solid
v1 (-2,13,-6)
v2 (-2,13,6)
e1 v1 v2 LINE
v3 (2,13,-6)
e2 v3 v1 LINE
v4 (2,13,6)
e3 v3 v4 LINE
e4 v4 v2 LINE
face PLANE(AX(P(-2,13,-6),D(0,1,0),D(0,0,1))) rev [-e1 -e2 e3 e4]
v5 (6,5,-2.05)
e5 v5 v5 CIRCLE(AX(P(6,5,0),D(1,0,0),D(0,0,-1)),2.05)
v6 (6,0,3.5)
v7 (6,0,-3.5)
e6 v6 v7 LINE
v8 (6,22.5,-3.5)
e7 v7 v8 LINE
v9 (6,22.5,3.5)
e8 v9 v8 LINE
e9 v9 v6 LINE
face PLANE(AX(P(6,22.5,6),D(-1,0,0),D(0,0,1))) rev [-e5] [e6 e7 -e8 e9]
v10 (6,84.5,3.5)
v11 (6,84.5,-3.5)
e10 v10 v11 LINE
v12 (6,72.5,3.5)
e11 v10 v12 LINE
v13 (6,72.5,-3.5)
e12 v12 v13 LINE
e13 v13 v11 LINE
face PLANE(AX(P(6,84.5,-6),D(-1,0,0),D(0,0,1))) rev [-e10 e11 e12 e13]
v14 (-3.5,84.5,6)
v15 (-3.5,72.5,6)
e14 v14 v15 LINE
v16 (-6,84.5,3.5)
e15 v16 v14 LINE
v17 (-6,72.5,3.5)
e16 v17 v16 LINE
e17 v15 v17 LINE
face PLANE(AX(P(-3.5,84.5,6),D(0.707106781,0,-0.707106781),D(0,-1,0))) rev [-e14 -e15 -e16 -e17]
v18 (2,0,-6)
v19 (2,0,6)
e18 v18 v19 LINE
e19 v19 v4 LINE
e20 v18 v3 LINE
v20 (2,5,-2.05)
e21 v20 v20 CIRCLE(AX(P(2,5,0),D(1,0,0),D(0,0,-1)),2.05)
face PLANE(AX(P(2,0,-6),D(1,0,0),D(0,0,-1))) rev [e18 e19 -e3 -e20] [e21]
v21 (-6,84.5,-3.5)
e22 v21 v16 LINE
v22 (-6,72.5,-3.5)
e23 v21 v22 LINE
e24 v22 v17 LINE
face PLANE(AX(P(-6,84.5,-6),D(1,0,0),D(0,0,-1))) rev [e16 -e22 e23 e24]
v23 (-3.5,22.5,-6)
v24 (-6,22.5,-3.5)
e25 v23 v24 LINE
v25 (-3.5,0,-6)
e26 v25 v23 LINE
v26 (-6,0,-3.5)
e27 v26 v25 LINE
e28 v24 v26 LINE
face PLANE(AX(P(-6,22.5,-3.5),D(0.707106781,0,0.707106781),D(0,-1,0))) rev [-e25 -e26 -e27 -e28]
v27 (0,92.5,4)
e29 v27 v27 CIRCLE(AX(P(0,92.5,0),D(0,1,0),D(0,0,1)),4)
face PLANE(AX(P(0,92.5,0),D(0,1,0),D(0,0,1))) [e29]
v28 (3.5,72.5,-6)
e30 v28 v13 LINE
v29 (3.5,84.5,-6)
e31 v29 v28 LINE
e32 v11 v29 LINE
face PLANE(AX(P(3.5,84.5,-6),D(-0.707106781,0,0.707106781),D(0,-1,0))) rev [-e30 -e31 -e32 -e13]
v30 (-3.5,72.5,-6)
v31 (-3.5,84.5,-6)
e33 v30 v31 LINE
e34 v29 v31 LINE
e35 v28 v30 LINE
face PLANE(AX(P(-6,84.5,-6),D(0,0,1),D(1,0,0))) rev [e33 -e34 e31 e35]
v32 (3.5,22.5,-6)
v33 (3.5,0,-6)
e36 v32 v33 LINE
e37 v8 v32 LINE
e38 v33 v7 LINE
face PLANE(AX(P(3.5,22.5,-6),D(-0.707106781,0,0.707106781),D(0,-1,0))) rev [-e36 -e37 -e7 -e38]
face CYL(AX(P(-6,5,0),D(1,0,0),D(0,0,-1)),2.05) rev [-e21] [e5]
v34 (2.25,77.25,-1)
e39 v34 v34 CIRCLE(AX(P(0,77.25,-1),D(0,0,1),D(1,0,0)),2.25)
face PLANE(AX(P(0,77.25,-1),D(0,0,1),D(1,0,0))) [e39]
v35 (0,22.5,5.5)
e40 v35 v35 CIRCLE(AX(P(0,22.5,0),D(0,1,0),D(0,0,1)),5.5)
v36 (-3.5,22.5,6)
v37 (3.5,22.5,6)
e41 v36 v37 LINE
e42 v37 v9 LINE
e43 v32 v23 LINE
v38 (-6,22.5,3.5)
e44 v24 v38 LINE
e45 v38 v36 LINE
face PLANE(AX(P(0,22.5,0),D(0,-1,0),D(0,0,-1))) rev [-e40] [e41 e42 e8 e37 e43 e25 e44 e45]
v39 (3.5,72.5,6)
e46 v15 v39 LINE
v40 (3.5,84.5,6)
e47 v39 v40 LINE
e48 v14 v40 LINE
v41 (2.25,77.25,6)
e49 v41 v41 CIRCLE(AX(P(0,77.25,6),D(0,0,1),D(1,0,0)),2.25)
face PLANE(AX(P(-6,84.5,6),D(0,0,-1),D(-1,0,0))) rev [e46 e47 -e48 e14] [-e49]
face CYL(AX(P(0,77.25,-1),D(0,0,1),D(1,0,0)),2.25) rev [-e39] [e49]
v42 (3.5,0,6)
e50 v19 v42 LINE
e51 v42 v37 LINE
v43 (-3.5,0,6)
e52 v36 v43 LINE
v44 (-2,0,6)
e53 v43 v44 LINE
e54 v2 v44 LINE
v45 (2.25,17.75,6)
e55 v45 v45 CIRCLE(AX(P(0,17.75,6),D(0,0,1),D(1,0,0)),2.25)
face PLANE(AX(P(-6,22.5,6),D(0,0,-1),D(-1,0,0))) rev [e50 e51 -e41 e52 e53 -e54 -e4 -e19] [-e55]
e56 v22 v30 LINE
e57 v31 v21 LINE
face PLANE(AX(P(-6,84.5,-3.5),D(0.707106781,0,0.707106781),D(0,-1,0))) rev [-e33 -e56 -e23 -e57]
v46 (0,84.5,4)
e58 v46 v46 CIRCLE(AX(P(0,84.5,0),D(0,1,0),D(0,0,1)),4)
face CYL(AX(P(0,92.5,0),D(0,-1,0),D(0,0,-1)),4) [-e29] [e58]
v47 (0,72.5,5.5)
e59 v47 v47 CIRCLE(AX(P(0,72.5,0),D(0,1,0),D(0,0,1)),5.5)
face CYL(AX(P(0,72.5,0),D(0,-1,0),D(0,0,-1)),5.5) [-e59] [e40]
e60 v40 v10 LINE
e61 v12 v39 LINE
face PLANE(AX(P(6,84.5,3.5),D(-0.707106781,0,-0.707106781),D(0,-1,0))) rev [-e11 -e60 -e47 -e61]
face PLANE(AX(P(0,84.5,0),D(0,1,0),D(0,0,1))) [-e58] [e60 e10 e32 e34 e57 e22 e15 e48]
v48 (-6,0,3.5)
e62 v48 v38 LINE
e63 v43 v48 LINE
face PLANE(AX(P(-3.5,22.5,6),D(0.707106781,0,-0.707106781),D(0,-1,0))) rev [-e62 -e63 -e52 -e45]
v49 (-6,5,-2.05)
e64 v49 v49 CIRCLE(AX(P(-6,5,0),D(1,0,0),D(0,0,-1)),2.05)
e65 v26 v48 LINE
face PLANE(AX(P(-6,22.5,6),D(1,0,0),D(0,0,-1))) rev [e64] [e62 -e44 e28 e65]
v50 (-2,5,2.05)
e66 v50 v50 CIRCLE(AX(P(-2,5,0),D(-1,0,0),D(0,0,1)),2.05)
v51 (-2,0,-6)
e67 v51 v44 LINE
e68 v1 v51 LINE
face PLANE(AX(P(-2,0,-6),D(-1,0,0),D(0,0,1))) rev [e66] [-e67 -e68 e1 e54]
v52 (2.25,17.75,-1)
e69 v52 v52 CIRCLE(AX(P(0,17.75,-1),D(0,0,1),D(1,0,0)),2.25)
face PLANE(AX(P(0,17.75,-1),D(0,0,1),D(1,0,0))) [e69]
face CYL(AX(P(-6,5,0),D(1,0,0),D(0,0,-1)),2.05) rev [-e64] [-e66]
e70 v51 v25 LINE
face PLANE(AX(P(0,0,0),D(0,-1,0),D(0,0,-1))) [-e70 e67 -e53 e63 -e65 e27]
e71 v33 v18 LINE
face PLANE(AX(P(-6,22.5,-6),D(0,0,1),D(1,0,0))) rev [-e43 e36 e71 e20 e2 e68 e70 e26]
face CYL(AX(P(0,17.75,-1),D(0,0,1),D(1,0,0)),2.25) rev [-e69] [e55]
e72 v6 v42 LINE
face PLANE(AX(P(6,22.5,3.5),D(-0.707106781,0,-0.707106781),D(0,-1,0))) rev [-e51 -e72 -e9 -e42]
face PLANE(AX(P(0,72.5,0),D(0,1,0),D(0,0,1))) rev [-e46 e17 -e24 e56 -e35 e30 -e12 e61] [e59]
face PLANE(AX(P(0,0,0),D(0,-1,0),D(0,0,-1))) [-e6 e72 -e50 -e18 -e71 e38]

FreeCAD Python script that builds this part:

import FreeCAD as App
import Part
import Sketcher
Q = App.Units.Quantity


def edges_at(feature, points):
    """Names of the edges that pass closest to the given points."""
    edges = feature.Shape.Edges
    near = lambda p: min(range(len(edges)), key=lambda i: edges[i].distToShape(Part.Vertex(*p))[0])
    return sorted({f"Edge{near(p) + 1}" for p in points})

doc = App.newDocument("Part")
params = doc.addObject("Spreadsheet::Sheet", "Params")
for row, (alias, value) in enumerate([
    ("sketch1_width", "12 mm"),
    ("pad1_length", "22.5 mm"),
    ("sketch2_diameter", "11 mm"),
    ("pad2_length", "50 mm"),
    ("sketch3_width", "12 mm"),
    ("pad3_length", "12 mm"),
    ("sketch4_diameter", "8 mm"),
    ("pad4_length", "8 mm"),
    ("chamfer_size", "2.5 mm"),
    ("chamfer2_size", "2.5 mm"),
    ("sketch5_width", "4 mm"),
    ("sketch5_height", "13 mm"),
    ("sketch6_diameter", "4.1 mm"),
    ("sketch7_diameter", "4.5 mm"),
    ("pocket3_length", "7 mm"),
    ("sketch8_diameter", "4.5 mm"),
    ("pocket4_length", "7 mm"),
], start=1):
    params.set(f"A{row}", alias)
    params.set(f"B{row}", "=" + value)
    params.setAlias(f"B{row}", alias)

body = doc.addObject("PartDesign::Body", "Body")

# Sketch on XZ plane
sketch1 = doc.addObject("Sketcher::SketchObject", "Sketch")
body.addObject(sketch1)
sketch1.AttachmentSupport = (doc.XZ_Plane, [""])
sketch1.MapMode = "FlatFace"
sketch1.addGeometry([
    Part.LineSegment(App.Vector(-6, -6, 0), App.Vector(-6, 6, 0)),
    Part.LineSegment(App.Vector(-6, 6, 0), App.Vector(6, 6, 0)),
    Part.LineSegment(App.Vector(6, 6, 0), App.Vector(6, -6, 0)),
    Part.LineSegment(App.Vector(6, -6, 0), App.Vector(-6, -6, 0)),
], False)
sketch1.addConstraint([
    Sketcher.Constraint("Coincident", 0, 2, 1, 1),
    Sketcher.Constraint("Coincident", 1, 2, 2, 1),
    Sketcher.Constraint("Coincident", 2, 2, 3, 1),
    Sketcher.Constraint("Coincident", 3, 2, 0, 1),
    Sketcher.Constraint("Vertical", 0),
    Sketcher.Constraint("Horizontal", 1),
    Sketcher.Constraint("Vertical", 2),
    Sketcher.Constraint("Horizontal", 3),
    Sketcher.Constraint("Symmetric", 0, 2, 2, 2, -1, 1),
    Sketcher.Constraint("Equal", 3, 0),
    Sketcher.Constraint("DistanceX", 1, 1, 1, 2, Q("12 mm")),
])
sketch1.setExpression("Constraints[10]", "Params.sketch1_width")
pad1 = doc.addObject("PartDesign::Pad", "Pad")
body.addObject(pad1)
pad1.Profile = sketch1
pad1.setExpression("Length", "Params.pad1_length")
pad1.Reversed = True

# Sketch on XZ plane
sketch2 = doc.addObject("Sketcher::SketchObject", "Sketch001")
body.addObject(sketch2)
sketch2.AttachmentSupport = (doc.XZ_Plane, [""])
sketch2.MapMode = "FlatFace"
sketch2.AttachmentOffset = App.Placement(App.Vector(0, 0, -22.5), App.Rotation())
sketch2.addGeometry(Part.Circle(App.Vector(0, 0, 0), App.Vector(0, 0, 1), 5.5), False)
sketch2.addConstraint([
    Sketcher.Constraint("Coincident", 0, 3, -1, 1),
    Sketcher.Constraint("Diameter", 0, Q("11 mm")),
])
sketch2.setExpression("Constraints[1]", "Params.sketch2_diameter")
pad2 = doc.addObject("PartDesign::Pad", "Pad001")
body.addObject(pad2)
pad2.Profile = sketch2
pad2.setExpression("Length", "Params.pad2_length")
pad2.Reversed = True

# Sketch on XZ plane
sketch3 = doc.addObject("Sketcher::SketchObject", "Sketch002")
body.addObject(sketch3)
sketch3.AttachmentSupport = (doc.XZ_Plane, [""])
sketch3.MapMode = "FlatFace"
sketch3.AttachmentOffset = App.Placement(App.Vector(0, 0, -72.5), App.Rotation())
sketch3.addGeometry([
    Part.LineSegment(App.Vector(-6, -6, 0), App.Vector(-6, 6, 0)),
    Part.LineSegment(App.Vector(-6, 6, 0), App.Vector(6, 6, 0)),
    Part.LineSegment(App.Vector(6, 6, 0), App.Vector(6, -6, 0)),
    Part.LineSegment(App.Vector(6, -6, 0), App.Vector(-6, -6, 0)),
], False)
sketch3.addConstraint([
    Sketcher.Constraint("Coincident", 0, 2, 1, 1),
    Sketcher.Constraint("Coincident", 1, 2, 2, 1),
    Sketcher.Constraint("Coincident", 2, 2, 3, 1),
    Sketcher.Constraint("Coincident", 3, 2, 0, 1),
    Sketcher.Constraint("Vertical", 0),
    Sketcher.Constraint("Horizontal", 1),
    Sketcher.Constraint("Vertical", 2),
    Sketcher.Constraint("Horizontal", 3),
    Sketcher.Constraint("Symmetric", 0, 2, 2, 2, -1, 1),
    Sketcher.Constraint("Equal", 3, 0),
    Sketcher.Constraint("DistanceX", 1, 1, 1, 2, Q("12 mm")),
])
sketch3.setExpression("Constraints[10]", "Params.sketch3_width")
pad3 = doc.addObject("PartDesign::Pad", "Pad002")
body.addObject(pad3)
pad3.Profile = sketch3
pad3.setExpression("Length", "Params.pad3_length")
pad3.Reversed = True

# Sketch on XZ plane
sketch4 = doc.addObject("Sketcher::SketchObject", "Sketch003")
body.addObject(sketch4)
sketch4.AttachmentSupport = (doc.XZ_Plane, [""])
sketch4.MapMode = "FlatFace"
sketch4.AttachmentOffset = App.Placement(App.Vector(0, 0, -84.5), App.Rotation())
sketch4.addGeometry(Part.Circle(App.Vector(0, 0, 0), App.Vector(0, 0, 1), 4), False)
sketch4.addConstraint([
    Sketcher.Constraint("Coincident", 0, 3, -1, 1),
    Sketcher.Constraint("Diameter", 0, Q("8 mm")),
])
sketch4.setExpression("Constraints[1]", "Params.sketch4_diameter")
pad4 = doc.addObject("PartDesign::Pad", "Pad003")
body.addObject(pad4)
pad4.Profile = sketch4
pad4.setExpression("Length", "Params.pad4_length")
pad4.Reversed = True
doc.recompute()

chamfer = doc.addObject("PartDesign::Chamfer", "Chamfer")
body.addObject(chamfer)
chamfer.Base = (pad4, edges_at(pad4, [
    (6, 11.25, 6),
    (-6, 11.25, 6),
    (-6, 11.25, -6),
    (6, 11.25, -6),
]))
chamfer.setExpression("Size", "Params.chamfer_size")
doc.recompute()

chamfer2 = doc.addObject("PartDesign::Chamfer", "Chamfer001")
body.addObject(chamfer2)
chamfer2.Base = (chamfer, edges_at(chamfer, [
    (6, 78.5, 6),
    (6, 78.5, -6),
    (-6, 78.5, -6),
    (-6, 78.5, 6),
]))
chamfer2.setExpression("Size", "Params.chamfer2_size")

# Sketch on XY plane
sketch5 = doc.addObject("Sketcher::SketchObject", "Sketch004")
body.addObject(sketch5)
sketch5.AttachmentSupport = (doc.XY_Plane, [""])
sketch5.MapMode = "FlatFace"
sketch5.AttachmentOffset = App.Placement(App.Vector(0, 0, 6), App.Rotation())
sketch5.addGeometry([
    Part.LineSegment(App.Vector(-2, 13, 0), App.Vector(-2, 0, 0)),
    Part.LineSegment(App.Vector(-2, 0, 0), App.Vector(2, 0, 0)),
    Part.LineSegment(App.Vector(2, 0, 0), App.Vector(2, 13, 0)),
    Part.LineSegment(App.Vector(2, 13, 0), App.Vector(-2, 13, 0)),
], False)
sketch5.addConstraint([
    Sketcher.Constraint("Coincident", 0, 2, 1, 1),
    Sketcher.Constraint("Coincident", 1, 2, 2, 1),
    Sketcher.Constraint("Coincident", 2, 2, 3, 1),
    Sketcher.Constraint("Coincident", 3, 2, 0, 1),
    Sketcher.Constraint("Vertical", 0),
    Sketcher.Constraint("Horizontal", 1),
    Sketcher.Constraint("Vertical", 2),
    Sketcher.Constraint("Horizontal", 3),
    Sketcher.Constraint("Symmetric", 0, 2, 1, 2, -1, 1),
    Sketcher.Constraint("DistanceX", 1, 1, 1, 2, Q("4 mm")),
    Sketcher.Constraint("DistanceY", 0, 2, 0, 1, Q("13 mm")),
])
sketch5.setExpression("Constraints[9]", "Params.sketch5_width")
sketch5.setExpression("Constraints[10]", "Params.sketch5_height")
pocket1 = doc.addObject("PartDesign::Pocket", "Pocket")
body.addObject(pocket1)
pocket1.Profile = sketch5
pocket1.Type = "ThroughAll"

# Sketch on YZ plane
sketch6 = doc.addObject("Sketcher::SketchObject", "Sketch005")
body.addObject(sketch6)
sketch6.AttachmentSupport = (doc.YZ_Plane, [""])
sketch6.MapMode = "FlatFace"
sketch6.AttachmentOffset = App.Placement(App.Vector(0, 0, 6), App.Rotation())
sketch6.addGeometry(Part.Circle(App.Vector(5, 0, 0), App.Vector(0, 0, 1), 2.05), False)
sketch6.addConstraint([
    Sketcher.Constraint("PointOnObject", 0, 3, -1),
    Sketcher.Constraint("Diameter", 0, Q("4.1 mm")),
    Sketcher.Constraint("DistanceX", -1, 1, 0, 3, Q("5 mm")),
])
sketch6.setExpression("Constraints[1]", "Params.sketch6_diameter")
pocket2 = doc.addObject("PartDesign::Pocket", "Pocket001")
body.addObject(pocket2)
pocket2.Profile = sketch6
pocket2.Type = "ThroughAll"

# Sketch on XY plane
sketch7 = doc.addObject("Sketcher::SketchObject", "Sketch006")
body.addObject(sketch7)
sketch7.AttachmentSupport = (doc.XY_Plane, [""])
sketch7.MapMode = "FlatFace"
sketch7.AttachmentOffset = App.Placement(App.Vector(0, 0, 6), App.Rotation())
sketch7.addGeometry(Part.Circle(App.Vector(0, 17.75, 0), App.Vector(0, 0, 1), 2.25), False)
sketch7.addConstraint([
    Sketcher.Constraint("PointOnObject", 0, 3, -2),
    Sketcher.Constraint("Diameter", 0, Q("4.5 mm")),
    Sketcher.Constraint("DistanceY", -1, 1, 0, 3, Q("17.75 mm")),
])
sketch7.setExpression("Constraints[1]", "Params.sketch7_diameter")
pocket3 = doc.addObject("PartDesign::Pocket", "Pocket002")
body.addObject(pocket3)
pocket3.Profile = sketch7
pocket3.setExpression("Length", "Params.pocket3_length")

# Sketch on XY plane
sketch8 = doc.addObject("Sketcher::SketchObject", "Sketch007")
body.addObject(sketch8)
sketch8.AttachmentSupport = (doc.XY_Plane, [""])
sketch8.MapMode = "FlatFace"
sketch8.AttachmentOffset = App.Placement(App.Vector(0, 0, 6), App.Rotation())
sketch8.addGeometry(Part.Circle(App.Vector(0, 77.25, 0), App.Vector(0, 0, 1), 2.25), False)
sketch8.addConstraint([
    Sketcher.Constraint("PointOnObject", 0, 3, -2),
    Sketcher.Constraint("Diameter", 0, Q("4.5 mm")),
    Sketcher.Constraint("DistanceY", -1, 1, 0, 3, Q("77.25 mm")),
])
sketch8.setExpression("Constraints[1]", "Params.sketch8_diameter")
pocket4 = doc.addObject("PartDesign::Pocket", "Pocket003")
body.addObject(pocket4)
pocket4.Profile = sketch8
pocket4.setExpression("Length", "Params.pocket4_length")

doc.recompute()
